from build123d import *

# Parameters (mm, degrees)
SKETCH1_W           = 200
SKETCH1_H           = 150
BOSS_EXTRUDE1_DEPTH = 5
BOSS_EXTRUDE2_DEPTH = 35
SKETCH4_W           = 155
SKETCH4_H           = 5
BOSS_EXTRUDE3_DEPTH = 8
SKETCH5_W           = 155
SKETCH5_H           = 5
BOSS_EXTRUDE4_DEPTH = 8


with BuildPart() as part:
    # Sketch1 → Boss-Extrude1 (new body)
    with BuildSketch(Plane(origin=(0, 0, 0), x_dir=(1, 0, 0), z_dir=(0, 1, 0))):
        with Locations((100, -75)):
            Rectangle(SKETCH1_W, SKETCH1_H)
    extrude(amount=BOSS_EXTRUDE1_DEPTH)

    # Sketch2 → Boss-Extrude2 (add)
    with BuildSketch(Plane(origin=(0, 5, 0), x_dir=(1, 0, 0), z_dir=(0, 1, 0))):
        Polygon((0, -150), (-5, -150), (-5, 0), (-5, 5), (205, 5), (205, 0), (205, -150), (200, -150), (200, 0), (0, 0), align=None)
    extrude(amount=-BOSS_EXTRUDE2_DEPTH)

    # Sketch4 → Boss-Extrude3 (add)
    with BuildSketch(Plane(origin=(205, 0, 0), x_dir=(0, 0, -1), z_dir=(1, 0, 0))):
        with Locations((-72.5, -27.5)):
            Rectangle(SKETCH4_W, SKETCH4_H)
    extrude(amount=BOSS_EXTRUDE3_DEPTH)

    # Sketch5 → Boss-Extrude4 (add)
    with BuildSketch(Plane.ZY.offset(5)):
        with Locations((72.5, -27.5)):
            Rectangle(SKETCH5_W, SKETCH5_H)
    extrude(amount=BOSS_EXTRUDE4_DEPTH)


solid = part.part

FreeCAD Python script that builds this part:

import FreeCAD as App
import Part
import Sketcher
from FreeCAD import Vector


def add_polygon(sketch, points):
    """Adds a closed chain of lines whose ends are joined by coincident constraints."""
    first, n = sketch.GeometryCount, len(points)
    for a, b in zip(points, points[1:] + points[:1]):
        sketch.addGeometry(Part.LineSegment(App.Vector(*a, 0), App.Vector(*b, 0)), False)
    for i in range(n):
        sketch.addConstraint(Sketcher.Constraint("Coincident", first + i, 2, first + (i + 1) % n, 1))

doc = App.newDocument("Part")
params = doc.addObject("Spreadsheet::Sheet", "Params")
for row, (alias, value) in enumerate([
    ("sketch1_width", "200 mm"),
    ("sketch1_height", "150 mm"),
    ("pad1_length", "5 mm"),
    ("sketch2_width", "5 mm"),
    ("sketch2_width2", "200 mm"),
    ("sketch2_height", "150 mm"),
    ("sketch2_height2", "155 mm"),
    ("pad2_length", "35 mm"),
    ("sketch3_width", "5 mm"),
    ("sketch3_height", "155 mm"),
    ("pad3_length", "8 mm"),
    ("sketch4_width", "5 mm"),
    ("sketch4_height", "155 mm"),
    ("pad4_length", "8 mm"),
], start=1):
    params.set(f"A{row}", alias)
    params.set(f"B{row}", "=" + value)
    params.setAlias(f"B{row}", alias)

body = doc.addObject("PartDesign::Body", "Body")

# Sketch on XZ plane
sketch1 = body.newObject("Sketcher::SketchObject", "Sketch")
sketch1.AttachmentSupport = (doc.getObject("XZ_Plane"), [""])
sketch1.MapMode = "FlatFace"
add_polygon(sketch1, [(0, 0), (0, 150), (200, 150), (200, 0)])  # lines 0-3
sketch1.addConstraint(Sketcher.Constraint("Vertical", 0))
sketch1.addConstraint(Sketcher.Constraint("Horizontal", 1))
sketch1.addConstraint(Sketcher.Constraint("Vertical", 2))
sketch1.addConstraint(Sketcher.Constraint("Horizontal", 3))
sketch1.addConstraint(Sketcher.Constraint("Coincident", 3, 2, -1, 1))
sketch1.addConstraint(Sketcher.Constraint("DistanceX", 1, 1, 1, 2, 200.0))
sketch1.addConstraint(Sketcher.Constraint("DistanceY", 0, 1, 0, 2, 150.0))
sketch1.setExpression("Constraints[9]", "Params.sketch1_width")
sketch1.setExpression("Constraints[10]", "Params.sketch1_height")
pad1 = body.newObject("PartDesign::Pad", "Pad")
pad1.Profile = sketch1
pad1.setExpression("Length", "Params.pad1_length")
pad1.Reversed = True

# Sketch on XZ plane
sketch2 = body.newObject("Sketcher::SketchObject", "Sketch001")
sketch2.AttachmentSupport = (doc.getObject("XZ_Plane"), [""])
sketch2.MapMode = "FlatFace"
sketch2.AttachmentOffset = App.Placement(Vector(0, 0, -5), App.Rotation())
add_polygon(sketch2, [(-5, 150), (0, 150), (0, 0), (200, 0), (200, 150), (205, 150), (205, -5), (-5, -5)])  # lines 0-7
sketch2.addConstraint(Sketcher.Constraint("Horizontal", 0))
sketch2.addConstraint(Sketcher.Constraint("Vertical", 1))
sketch2.addConstraint(Sketcher.Constraint("Horizontal", 2))
sketch2.addConstraint(Sketcher.Constraint("Vertical", 3))
sketch2.addConstraint(Sketcher.Constraint("Horizontal", 4))
sketch2.addConstraint(Sketcher.Constraint("Vertical", 5))
sketch2.addConstraint(Sketcher.Constraint("Horizontal", 6))
sketch2.addConstraint(Sketcher.Constraint("Vertical", 7))
sketch2.addConstraint(Sketcher.Constraint("Coincident", 1, 2, -1, 1))
sketch2.addConstraint(Sketcher.Constraint("Horizontal", 0, 2, 3, 2))
sketch2.addConstraint(Sketcher.Constraint("Equal", 0, 4))
sketch2.addConstraint(Sketcher.Constraint("DistanceX", 0, 1, 0, 2, 5.0))
sketch2.addConstraint(Sketcher.Constraint("DistanceX", 2, 1, 2, 2, 200.0))
sketch2.addConstraint(Sketcher.Constraint("DistanceY", 1, 2, 1, 1, 150.0))
sketch2.addConstraint(Sketcher.Constraint("DistanceY", 5, 2, 5, 1, 155.0))
sketch2.setExpression("Constraints[19]", "Params.sketch2_width")
sketch2.setExpression("Constraints[20]", "Params.sketch2_width2")
sketch2.setExpression("Constraints[21]", "Params.sketch2_height")
sketch2.setExpression("Constraints[22]", "Params.sketch2_height2")
pad2 = body.newObject("PartDesign::Pad", "Pad001")
pad2.Profile = sketch2
pad2.setExpression("Length", "Params.pad2_length")

# Sketch on YZ plane
sketch3 = body.newObject("Sketcher::SketchObject", "Sketch002")
sketch3.AttachmentSupport = (doc.getObject("YZ_Plane"), [""])
sketch3.MapMode = "FlatFace"
sketch3.AttachmentOffset = App.Placement(Vector(0, 0, 205), App.Rotation())
add_polygon(sketch3, [(-25, 150), (-30, 150), (-30, -5), (-25, -5)])  # lines 0-3
sketch3.addConstraint(Sketcher.Constraint("Horizontal", 0))
sketch3.addConstraint(Sketcher.Constraint("Vertical", 1))
sketch3.addConstraint(Sketcher.Constraint("Horizontal", 2))
sketch3.addConstraint(Sketcher.Constraint("Vertical", 3))
sketch3.addConstraint(Sketcher.Constraint("DistanceX", 0, 2, 0, 1, 5.0))
sketch3.addConstraint(Sketcher.Constraint("DistanceY", 1, 2, 1, 1, 155.0))
sketch3.addConstraint(Sketcher.Constraint("DistanceX", 0, 2, -1, 1, 30.0))
sketch3.addConstraint(Sketcher.Constraint("DistanceY", -1, 1, 0, 2, 150.0))
sketch3.setExpression("Constraints[8]", "Params.sketch3_width")
sketch3.setExpression("Constraints[9]", "Params.sketch3_height")
pad3 = body.newObject("PartDesign::Pad", "Pad002")
pad3.Profile = sketch3
pad3.setExpression("Length", "Params.pad3_length")

# Sketch on YZ plane
sketch4 = body.newObject("Sketcher::SketchObject", "Sketch003")
sketch4.AttachmentSupport = (doc.getObject("YZ_Plane"), [""])
sketch4.MapMode = "FlatFace"
sketch4.AttachmentOffset = App.Placement(Vector(0, 0, -5), App.Rotation())
add_polygon(sketch4, [(-25, -5), (-30, -5), (-30, 150), (-25, 150)])  # lines 0-3
sketch4.addConstraint(Sketcher.Constraint("Horizontal", 0))
sketch4.addConstraint(Sketcher.Constraint("Vertical", 1))
sketch4.addConstraint(Sketcher.Constraint("Horizontal", 2))
sketch4.addConstraint(Sketcher.Constraint("Vertical", 3))
sketch4.addConstraint(Sketcher.Constraint("DistanceX", 0, 2, 0, 1, 5.0))
sketch4.addConstraint(Sketcher.Constraint("DistanceY", 1, 1, 1, 2, 155.0))
sketch4.addConstraint(Sketcher.Constraint("DistanceX", 0, 2, -1, 1, 30.0))
sketch4.addConstraint(Sketcher.Constraint("DistanceY", 0, 2, -1, 1, 5.0))
sketch4.setExpression("Constraints[8]", "Params.sketch4_width")
sketch4.setExpression("Constraints[9]", "Params.sketch4_height")
pad4 = body.newObject("PartDesign::Pad", "Pad003")
pad4.Profile = sketch4
pad4.setExpression("Length", "Params.pad4_length")
pad4.Reversed = True

doc.recompute()
